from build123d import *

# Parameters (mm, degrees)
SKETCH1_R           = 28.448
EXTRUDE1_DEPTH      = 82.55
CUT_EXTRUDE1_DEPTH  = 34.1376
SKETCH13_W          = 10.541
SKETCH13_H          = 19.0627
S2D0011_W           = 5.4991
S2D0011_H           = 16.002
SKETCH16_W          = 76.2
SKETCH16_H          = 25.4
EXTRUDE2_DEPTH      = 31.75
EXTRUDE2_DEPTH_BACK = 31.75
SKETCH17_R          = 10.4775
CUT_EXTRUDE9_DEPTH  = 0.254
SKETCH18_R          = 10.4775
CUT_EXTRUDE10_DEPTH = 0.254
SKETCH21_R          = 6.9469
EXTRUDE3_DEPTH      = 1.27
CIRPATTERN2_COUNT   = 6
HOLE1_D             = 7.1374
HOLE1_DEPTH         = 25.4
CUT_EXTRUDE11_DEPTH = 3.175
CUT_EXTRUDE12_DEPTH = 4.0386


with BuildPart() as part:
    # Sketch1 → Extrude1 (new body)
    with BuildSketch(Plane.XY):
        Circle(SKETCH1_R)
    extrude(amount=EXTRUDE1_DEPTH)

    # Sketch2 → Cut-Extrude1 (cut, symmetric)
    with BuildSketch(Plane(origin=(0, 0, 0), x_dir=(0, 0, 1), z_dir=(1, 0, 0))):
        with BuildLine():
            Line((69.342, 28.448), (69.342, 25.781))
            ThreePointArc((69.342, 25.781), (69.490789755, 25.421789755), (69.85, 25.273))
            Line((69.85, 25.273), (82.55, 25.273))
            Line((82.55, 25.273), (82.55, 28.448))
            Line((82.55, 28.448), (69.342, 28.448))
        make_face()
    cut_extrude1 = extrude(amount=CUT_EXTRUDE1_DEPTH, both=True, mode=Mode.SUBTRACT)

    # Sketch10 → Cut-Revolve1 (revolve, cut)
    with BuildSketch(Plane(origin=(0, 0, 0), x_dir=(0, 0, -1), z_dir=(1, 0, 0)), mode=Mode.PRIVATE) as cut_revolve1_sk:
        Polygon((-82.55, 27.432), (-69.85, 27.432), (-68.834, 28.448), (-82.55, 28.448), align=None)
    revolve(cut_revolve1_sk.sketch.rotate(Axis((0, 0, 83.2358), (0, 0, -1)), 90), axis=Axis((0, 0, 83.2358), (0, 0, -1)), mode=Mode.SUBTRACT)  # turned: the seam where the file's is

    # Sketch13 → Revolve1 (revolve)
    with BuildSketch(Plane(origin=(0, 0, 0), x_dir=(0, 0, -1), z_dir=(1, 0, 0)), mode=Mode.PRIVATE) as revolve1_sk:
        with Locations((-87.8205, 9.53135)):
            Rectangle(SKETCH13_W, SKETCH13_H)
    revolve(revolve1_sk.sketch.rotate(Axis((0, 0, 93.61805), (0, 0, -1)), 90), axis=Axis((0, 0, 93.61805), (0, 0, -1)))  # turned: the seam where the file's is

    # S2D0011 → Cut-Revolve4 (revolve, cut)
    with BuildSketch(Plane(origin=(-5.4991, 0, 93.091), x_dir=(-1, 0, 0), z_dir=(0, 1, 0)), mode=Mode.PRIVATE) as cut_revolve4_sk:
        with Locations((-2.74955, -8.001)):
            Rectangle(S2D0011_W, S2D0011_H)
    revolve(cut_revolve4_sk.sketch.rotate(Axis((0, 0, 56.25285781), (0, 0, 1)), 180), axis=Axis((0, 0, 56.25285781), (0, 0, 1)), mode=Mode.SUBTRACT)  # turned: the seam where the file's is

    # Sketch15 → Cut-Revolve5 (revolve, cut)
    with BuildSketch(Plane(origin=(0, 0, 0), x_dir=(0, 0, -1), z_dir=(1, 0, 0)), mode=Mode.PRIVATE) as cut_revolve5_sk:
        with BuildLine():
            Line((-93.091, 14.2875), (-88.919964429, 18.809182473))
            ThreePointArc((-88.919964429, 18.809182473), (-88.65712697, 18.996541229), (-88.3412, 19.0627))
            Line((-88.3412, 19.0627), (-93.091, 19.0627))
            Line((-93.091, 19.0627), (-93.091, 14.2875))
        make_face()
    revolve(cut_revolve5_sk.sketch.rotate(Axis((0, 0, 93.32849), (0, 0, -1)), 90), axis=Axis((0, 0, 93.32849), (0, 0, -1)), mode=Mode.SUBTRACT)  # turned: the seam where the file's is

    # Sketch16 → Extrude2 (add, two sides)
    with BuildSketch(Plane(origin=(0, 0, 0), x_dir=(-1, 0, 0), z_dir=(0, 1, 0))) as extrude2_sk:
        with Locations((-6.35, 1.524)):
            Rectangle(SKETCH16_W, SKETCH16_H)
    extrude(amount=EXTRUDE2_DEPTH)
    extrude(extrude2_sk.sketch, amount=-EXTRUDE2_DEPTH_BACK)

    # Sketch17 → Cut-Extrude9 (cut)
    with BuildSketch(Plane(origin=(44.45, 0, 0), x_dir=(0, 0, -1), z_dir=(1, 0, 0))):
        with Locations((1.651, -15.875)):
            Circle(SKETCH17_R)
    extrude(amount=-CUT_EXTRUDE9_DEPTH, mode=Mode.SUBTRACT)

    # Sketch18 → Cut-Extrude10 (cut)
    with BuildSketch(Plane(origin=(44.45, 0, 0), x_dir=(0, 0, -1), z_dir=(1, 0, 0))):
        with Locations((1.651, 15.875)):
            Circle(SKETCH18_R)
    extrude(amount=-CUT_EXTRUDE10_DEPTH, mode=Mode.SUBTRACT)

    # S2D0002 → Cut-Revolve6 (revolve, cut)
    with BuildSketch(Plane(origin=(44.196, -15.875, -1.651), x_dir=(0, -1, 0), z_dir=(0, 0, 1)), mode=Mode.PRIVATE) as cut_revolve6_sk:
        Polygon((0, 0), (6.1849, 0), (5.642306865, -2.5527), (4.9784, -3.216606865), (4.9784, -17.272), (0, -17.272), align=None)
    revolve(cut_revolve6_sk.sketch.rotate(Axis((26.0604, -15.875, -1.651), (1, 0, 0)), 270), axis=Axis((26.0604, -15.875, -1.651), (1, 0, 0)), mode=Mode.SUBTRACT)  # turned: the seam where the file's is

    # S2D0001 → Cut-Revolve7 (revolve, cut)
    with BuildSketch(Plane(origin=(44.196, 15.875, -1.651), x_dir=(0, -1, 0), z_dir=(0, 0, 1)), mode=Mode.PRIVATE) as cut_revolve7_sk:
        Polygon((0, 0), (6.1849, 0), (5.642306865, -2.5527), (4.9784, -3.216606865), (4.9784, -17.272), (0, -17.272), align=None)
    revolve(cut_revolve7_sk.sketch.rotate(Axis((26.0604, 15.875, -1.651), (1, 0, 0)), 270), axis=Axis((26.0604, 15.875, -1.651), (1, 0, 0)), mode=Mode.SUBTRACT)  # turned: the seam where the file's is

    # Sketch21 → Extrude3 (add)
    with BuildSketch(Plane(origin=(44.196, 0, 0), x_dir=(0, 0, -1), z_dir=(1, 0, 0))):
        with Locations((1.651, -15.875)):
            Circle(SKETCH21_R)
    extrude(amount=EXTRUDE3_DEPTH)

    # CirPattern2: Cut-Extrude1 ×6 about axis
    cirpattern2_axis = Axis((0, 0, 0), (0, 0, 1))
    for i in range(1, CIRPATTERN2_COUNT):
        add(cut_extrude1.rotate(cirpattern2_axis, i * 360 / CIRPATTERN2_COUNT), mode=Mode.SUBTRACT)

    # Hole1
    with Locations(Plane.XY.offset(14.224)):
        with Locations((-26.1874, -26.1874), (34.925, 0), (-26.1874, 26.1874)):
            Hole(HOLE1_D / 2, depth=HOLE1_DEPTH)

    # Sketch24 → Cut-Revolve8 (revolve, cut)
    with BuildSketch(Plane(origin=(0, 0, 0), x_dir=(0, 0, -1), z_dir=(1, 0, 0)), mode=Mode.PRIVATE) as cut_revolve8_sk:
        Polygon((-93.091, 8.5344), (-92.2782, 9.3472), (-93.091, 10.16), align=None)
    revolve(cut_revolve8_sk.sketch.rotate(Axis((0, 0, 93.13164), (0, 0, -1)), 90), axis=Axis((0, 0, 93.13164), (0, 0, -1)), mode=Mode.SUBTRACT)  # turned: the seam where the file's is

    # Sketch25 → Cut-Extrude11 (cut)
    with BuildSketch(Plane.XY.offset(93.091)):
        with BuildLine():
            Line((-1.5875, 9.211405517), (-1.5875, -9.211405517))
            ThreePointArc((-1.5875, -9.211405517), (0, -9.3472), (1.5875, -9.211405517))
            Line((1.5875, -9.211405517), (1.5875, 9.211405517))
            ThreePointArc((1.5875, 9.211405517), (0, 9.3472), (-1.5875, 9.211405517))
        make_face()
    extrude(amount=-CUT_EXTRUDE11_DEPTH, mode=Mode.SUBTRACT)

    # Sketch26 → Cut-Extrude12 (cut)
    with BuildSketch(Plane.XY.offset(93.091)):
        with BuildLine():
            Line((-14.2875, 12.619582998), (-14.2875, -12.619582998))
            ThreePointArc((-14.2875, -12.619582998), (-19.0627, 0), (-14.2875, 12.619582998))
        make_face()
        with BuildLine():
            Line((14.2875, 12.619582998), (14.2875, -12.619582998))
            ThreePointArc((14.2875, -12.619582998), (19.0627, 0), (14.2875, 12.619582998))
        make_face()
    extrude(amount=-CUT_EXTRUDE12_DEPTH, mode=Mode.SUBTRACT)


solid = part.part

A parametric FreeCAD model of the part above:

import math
import FreeCAD as App
import Part
import Sketcher
from FreeCAD import Vector
Q = App.Units.Quantity


def add_polygon(sketch, points):
    """Adds a closed chain of lines whose ends are joined by coincident constraints."""
    first, n = sketch.GeometryCount, len(points)
    for a, b in zip(points, points[1:] + points[:1]):
        sketch.addGeometry(Part.LineSegment(App.Vector(*a, 0), App.Vector(*b, 0)), False)
    for i in range(n):
        sketch.addConstraint(Sketcher.Constraint("Coincident", first + i, 2, first + (i + 1) % n, 1))

doc = App.newDocument("Part")
body = doc.addObject("PartDesign::Body", "Body")

sketch1 = body.newObject("Sketcher::SketchObject", "Sketch")
sketch1.AttachmentSupport = (doc.getObject("XY_Plane"), [""])
sketch1.MapMode = "FlatFace"
sketch1.addGeometry(Part.Circle(Vector(0, 0, 0), Vector(0, 0, 1), 28), False)
sketch1.addConstraint([
    Sketcher.Constraint("Coincident", 0, 3, -1, 1),
    Sketcher.Constraint("Diameter", 0, Q("2.24 in")),
])
pad1 = body.newObject("PartDesign::Pad", "Pad")
pad1.Profile = sketch1
pad1.Length = Q("3.25 in")

sketch2 = body.newObject("Sketcher::SketchObject", "Sketch001")
sketch2.AttachmentSupport = (doc.getObject("YZ_Plane"), [""])
sketch2.MapMode = "FlatFace"
sketch2.addGeometry([
    Part.LineSegment(Vector(-28.4, 69.3, 0), Vector(-25.8, 69.3, 0)),
    Part.ArcOfCircle(Part.Circle(Vector(-25.8, 69.8, 0), Vector(0, 0, 1), 0.5), math.radians(-90), math.radians(0)),
    Part.LineSegment(Vector(-25.3, 69.8, 0), Vector(-25.3, 82.5, 0)),
    Part.LineSegment(Vector(-25.3, 82.5, 0), Vector(-28.4, 82.5, 0)),
    Part.LineSegment(Vector(-28.4, 82.5, 0), Vector(-28.4, 69.3, 0)),
], False)
sketch2.addConstraint([
    Sketcher.Constraint("Tangent", 0, 2, 1, 1),
    Sketcher.Constraint("Tangent", 1, 2, 2, 1),
    Sketcher.Constraint("Coincident", 2, 2, 3, 1),
    Sketcher.Constraint("Coincident", 3, 2, 4, 1),
    Sketcher.Constraint("Coincident", 4, 2, 0, 1),
    Sketcher.Constraint("Horizontal", 0),
    Sketcher.Constraint("Vertical", 2),
    Sketcher.Constraint("Horizontal", 3),
    Sketcher.Constraint("Vertical", 4),
    Sketcher.Constraint("Radius", 1, Q("0.02 in")),
    Sketcher.Constraint("DistanceY", 2, 1, 2, 2, Q("0.5 in")),
    Sketcher.Constraint("DistanceX", 0, 1, 0, 2, Q("0.105 in")),
    Sketcher.Constraint("DistanceY", -1, 1, 1, 3, Q("2.75 in")),
    Sketcher.Constraint("DistanceX", 3, 2, -1, 1, Q("1.12 in")),
])
pocket1 = body.newObject("PartDesign::Pocket", "Pocket")
pocket1.Profile = sketch2
pocket1.Length = Q("2.688 in")
pocket1.Midplane = True

sketch3 = body.newObject("Sketcher::SketchObject", "Sketch002")
sketch3.AttachmentSupport = (doc.getObject("YZ_Plane"), [""])
sketch3.MapMode = "FlatFace"
add_polygon(sketch3, [(27.4, 82.5), (27.4, 69.8), (28.4, 68.8), (28.4, 82.5)])
sketch3.addConstraint([
    Sketcher.Constraint("Vertical", 0),
    Sketcher.Constraint("Vertical", 2),
    Sketcher.Constraint("Horizontal", 3),
    Sketcher.Constraint("DistanceY", 0, 2, 0, 1, Q("0.5 in")),
    Sketcher.Constraint("Angle", 1, Q("-45 deg")),
    Sketcher.Constraint("DistanceX", 3, 2, 3, 1, Q("0.04 in")),
    Sketcher.Constraint("DistanceX", -1, 1, 0, 2, Q("1.08 in")),
    Sketcher.Constraint("DistanceY", -1, 1, 0, 2, Q("2.75 in")),
])
groove = body.newObject("PartDesign::Groove", "Groove")
groove.Profile = sketch3
groove.ReferenceAxis = (sketch3, ["V_Axis"])
groove.Angle = 360

sketch4 = body.newObject("Sketcher::SketchObject", "Sketch003")
sketch4.AttachmentSupport = (doc.getObject("YZ_Plane"), [""])
sketch4.MapMode = "FlatFace"
add_polygon(sketch4, [(19, 93), (0, 93), (0, 83), (19, 83)])
sketch4.addConstraint([
    Sketcher.Constraint("Horizontal", 0),
    Sketcher.Constraint("Vertical", 1),
    Sketcher.Constraint("Horizontal", 2),
    Sketcher.Constraint("Vertical", 3),
    Sketcher.Constraint("PointOnObject", 0, 2, -2),
    Sketcher.Constraint("DistanceY", 1, 2, 1, 1, Q("0.415 in")),
    Sketcher.Constraint("DistanceY", -1, 1, 1, 2, Q("3.25 in")),
    Sketcher.Constraint("DistanceX", 0, 2, 0, 1, Q("0.7505 in")),
])
revolution = body.newObject("PartDesign::Revolution", "Revolution")
revolution.Profile = sketch4
revolution.ReferenceAxis = (sketch4, ["V_Axis"])
revolution.Angle = 360

sketch5 = body.newObject("Sketcher::SketchObject", "Sketch004")
sketch5.AttachmentSupport = (doc.getObject("XZ_Plane"), [""])
sketch5.MapMode = "FlatFace"
add_polygon(sketch5, [(0, 93), (0, 77), (-5, 77), (-5, 93)])
sketch5.addConstraint([
    Sketcher.Constraint("Vertical", 0),
    Sketcher.Constraint("Horizontal", 1),
    Sketcher.Constraint("Vertical", 2),
    Sketcher.Constraint("Horizontal", 3),
    Sketcher.Constraint("PointOnObject", 0, 2, -2),
    Sketcher.Constraint("DistanceY", 0, 2, 0, 1, Q("0.63 in")),
    Sketcher.Constraint("DistanceX", 1, 2, 1, 1, Q("0.2165 in")),
    Sketcher.Constraint("DistanceY", -1, 1, 0, 2, Q("3.035 in")),
])
groove2 = body.newObject("PartDesign::Groove", "Groove001")
groove2.Profile = sketch5
groove2.ReferenceAxis = (sketch5, ["V_Axis"])
groove2.Angle = 360

sketch6 = body.newObject("Sketcher::SketchObject", "Sketch005")
sketch6.AttachmentSupport = (doc.getObject("YZ_Plane"), [""])
sketch6.MapMode = "FlatFace"
sketch6.addGeometry([
    Part.LineSegment(Vector(14.3, 93.1, 0), Vector(18.8, 88.9, 0)),
    Part.ArcOfCircle(Part.Circle(Vector(18.3, 88.3, 0), Vector(0, 0, 1), 0.8), math.radians(0), math.radians(47)),
    Part.LineSegment(Vector(19.1, 88.3, 0), Vector(19.1, 93.1, 0)),
    Part.LineSegment(Vector(19.1, 93.1, 0), Vector(14.3, 93.1, 0)),
], False)
sketch6.addConstraint([
    Sketcher.Constraint("Tangent", 0, 2, 1, 2),
    Sketcher.Constraint("Tangent", 1, 1, 2, 1),
    Sketcher.Constraint("Coincident", 2, 2, 3, 1),
    Sketcher.Constraint("Coincident", 3, 2, 0, 1),
    Sketcher.Constraint("Vertical", 2),
    Sketcher.Constraint("Horizontal", 3),
    Sketcher.Constraint("Radius", 1, Q("0.031 in")),
    Sketcher.Constraint("DistanceX", 3, 2, 3, 1, Q("0.188 in")),
    Sketcher.Constraint("DistanceY", 2, 1, 2, 2, Q("0.187 in")),
    Sketcher.Constraint("DistanceY", -1, 1, 1, 3, Q("3.478 in")),
    Sketcher.Constraint("DistanceX", -1, 1, 3, 2, Q("0.5625 in")),
])
groove3 = body.newObject("PartDesign::Groove", "Groove002")
groove3.Profile = sketch6
groove3.ReferenceAxis = (sketch6, ["V_Axis"])
groove3.Angle = 360

sketch7 = body.newObject("Sketcher::SketchObject", "Sketch006")
sketch7.AttachmentSupport = (doc.getObject("XZ_Plane"), [""])
sketch7.MapMode = "FlatFace"
add_polygon(sketch7, [(44, 14), (44, -11), (-32, -11), (-32, 14)])
sketch7.addConstraint([
    Sketcher.Constraint("Vertical", 0),
    Sketcher.Constraint("Horizontal", 1),
    Sketcher.Constraint("Vertical", 2),
    Sketcher.Constraint("Horizontal", 3),
    Sketcher.Constraint("DistanceX", 1, 2, 1, 1, Q("3 in")),
    Sketcher.Constraint("DistanceY", 0, 2, 0, 1, Q("1 in")),
    Sketcher.Constraint("DistanceX", -1, 1, 0, 2, Q("1.75 in")),
    Sketcher.Constraint("DistanceY", 0, 2, -1, 1, Q("0.44 in")),
])
pad2 = body.newObject("PartDesign::Pad", "Pad001")
pad2.Profile = sketch7
pad2.Type = "TwoLengths"
pad2.Length = Q("1.25 in")
pad2.Length2 = Q("1.25 in")
pad2.Reversed = True

sketch8 = body.newObject("Sketcher::SketchObject", "Sketch007")
sketch8.AttachmentSupport = (doc.getObject("YZ_Plane"), [""])
sketch8.MapMode = "FlatFace"
sketch8.AttachmentOffset = App.Placement(Vector(0, 0, 1.75 * 25.4), App.Rotation())
sketch8.addGeometry(Part.Circle(Vector(-16, -2, 0), Vector(0, 0, 1), 10), False)
sketch8.addConstraint([
    Sketcher.Constraint("Diameter", 0, Q("0.825 in")),
    Sketcher.Constraint("DistanceX", 0, 3, -1, 1, Q("0.625 in")),
    Sketcher.Constraint("DistanceY", 0, 3, -1, 1, Q("0.065 in")),
])
pocket2 = body.newObject("PartDesign::Pocket", "Pocket001")
pocket2.Profile = sketch8
pocket2.Length = Q("0.01 in")

sketch9 = body.newObject("Sketcher::SketchObject", "Sketch008")
sketch9.AttachmentSupport = (doc.getObject("YZ_Plane"), [""])
sketch9.MapMode = "FlatFace"
sketch9.AttachmentOffset = App.Placement(Vector(0, 0, 1.75 * 25.4), App.Rotation())
sketch9.addGeometry(Part.Circle(Vector(16, -2, 0), Vector(0, 0, 1), 10), False)
sketch9.addConstraint([
    Sketcher.Constraint("Diameter", 0, Q("0.825 in")),
    Sketcher.Constraint("DistanceX", -1, 1, 0, 3, Q("0.625 in")),
    Sketcher.Constraint("DistanceY", 0, 3, -1, 1, Q("0.065 in")),
])
pocket3 = body.newObject("PartDesign::Pocket", "Pocket002")
pocket3.Profile = sketch9
pocket3.Length = Q("0.01 in")

sketch10 = body.newObject("Sketcher::SketchObject", "Sketch009")
sketch10.AttachmentSupport = (doc.getObject("XY_Plane"), [""])
sketch10.MapMode = "FlatFace"
sketch10.AttachmentOffset = App.Placement(Vector(0, 0, -0.065 * 25.4), App.Rotation())
add_polygon(sketch10, [(44.2, -22.1), (44.2, -15.9), (26.9, -15.9), (26.9, -20.9), (41, -20.9), (41.6, -21.5)])
sketch10.addGeometry(Part.LineSegment(Vector(26.9, -15.9, 0), Vector(44.2, -15.9, 0)), True)
sketch10.addConstraint([
    Sketcher.Constraint("Vertical", 0),
    Sketcher.Constraint("Horizontal", 1),
    Sketcher.Constraint("Vertical", 2),
    Sketcher.Constraint("Horizontal", 3),
    Sketcher.Constraint("Horizontal", 6),
    Sketcher.Constraint("Coincident", 6, 1, 1, 2),
    Sketcher.Constraint("Vertical", 5, 2, 6, 2),
    Sketcher.Constraint("Angle", 4, Q("-45 deg")),
    Sketcher.Constraint("Angle", 5, Q("-12 deg")),
    Sketcher.Constraint("DistanceX", 1, 2, 1, 1, Q("0.68 in")),
    Sketcher.Constraint("DistanceY", 2, 2, 2, 1, Q("0.196 in")),
    Sketcher.Constraint("DistanceX", -1, 1, 0, 2, Q("1.74 in")),
    Sketcher.Constraint("DistanceY", 0, 1, 0, 2, Q("0.2435 in")),
    Sketcher.Constraint("DistanceY", 0, 2, -1, 1, Q("0.625 in")),
    Sketcher.Constraint("DistanceX", -1, 1, 4, 2, Q("1.6395 in")),
])
groove4 = body.newObject("PartDesign::Groove", "Groove003")
groove4.Profile = sketch10
groove4.ReferenceAxis = (sketch10, ["Axis0"])
groove4.Angle = 360

sketch11 = body.newObject("Sketcher::SketchObject", "Sketch010")
sketch11.AttachmentSupport = (doc.getObject("XY_Plane"), [""])
sketch11.MapMode = "FlatFace"
sketch11.AttachmentOffset = App.Placement(Vector(0, 0, -0.065 * 25.4), App.Rotation())
add_polygon(sketch11, [(44.2, 9.7), (44.2, 15.9), (26.9, 15.9), (26.9, 10.9), (41, 10.9), (41.6, 10.2)])
sketch11.addGeometry(Part.LineSegment(Vector(26.9, 15.9, 0), Vector(44.2, 15.9, 0)), True)
sketch11.addConstraint([
    Sketcher.Constraint("Vertical", 0),
    Sketcher.Constraint("Horizontal", 1),
    Sketcher.Constraint("Vertical", 2),
    Sketcher.Constraint("Horizontal", 3),
    Sketcher.Constraint("Horizontal", 6),
    Sketcher.Constraint("Coincident", 6, 1, 1, 2),
    Sketcher.Constraint("Vertical", 5, 2, 6, 2),
    Sketcher.Constraint("Angle", 4, Q("-45 deg")),
    Sketcher.Constraint("Angle", 5, Q("-12 deg")),
    Sketcher.Constraint("DistanceX", 1, 2, 1, 1, Q("0.68 in")),
    Sketcher.Constraint("DistanceY", 2, 2, 2, 1, Q("0.196 in")),
    Sketcher.Constraint("DistanceX", -1, 1, 0, 2, Q("1.74 in")),
    Sketcher.Constraint("DistanceY", 0, 1, 0, 2, Q("0.2435 in")),
    Sketcher.Constraint("DistanceY", -1, 1, 0, 2, Q("0.625 in")),
    Sketcher.Constraint("DistanceX", -1, 1, 4, 2, Q("1.6395 in")),
])
groove5 = body.newObject("PartDesign::Groove", "Groove004")
groove5.Profile = sketch11
groove5.ReferenceAxis = (sketch11, ["Axis0"])
groove5.Angle = 360

sketch12 = body.newObject("Sketcher::SketchObject", "Sketch011")
sketch12.AttachmentSupport = (doc.getObject("YZ_Plane"), [""])
sketch12.MapMode = "FlatFace"
sketch12.AttachmentOffset = App.Placement(Vector(0, 0, 1.74 * 25.4), App.Rotation())
sketch12.addGeometry(Part.Circle(Vector(-16, -2, 0), Vector(0, 0, 1), 7), False)
sketch12.addConstraint([
    Sketcher.Constraint("Diameter", 0, Q("0.547 in")),
    Sketcher.Constraint("DistanceX", 0, 3, -1, 1, Q("0.625 in")),
    Sketcher.Constraint("DistanceY", 0, 3, -1, 1, Q("0.065 in")),
])
pad3 = body.newObject("PartDesign::Pad", "Pad002")
pad3.Profile = sketch12
pad3.Length = Q("0.05 in")
doc.recompute()

polarpattern = body.newObject("PartDesign::PolarPattern", "PolarPattern")
polarpattern.Originals = [pocket1]
polarpattern.Axis = (doc.getObject("Z_Axis"), [""])
polarpattern.Angle = 360
polarpattern.Occurrences = 6
body.Tip = polarpattern

sketch13 = body.newObject("Sketcher::SketchObject", "Sketch012")
sketch13.AttachmentSupport = (doc.getObject("XY_Plane"), [""])
sketch13.MapMode = "FlatFace"
sketch13.AttachmentOffset = App.Placement(Vector(0, 0, 0.56 * 25.4), App.Rotation())
sketch13.addGeometry([
    Part.Circle(Vector(-26.2, -26.2, 0), Vector(0, 0, 1), 3.6),
    Part.Circle(Vector(34.9, 0, 0), Vector(0, 0, 1), 3.6),
    Part.Circle(Vector(-26.2, 26.2, 0), Vector(0, 0, 1), 3.6),
], False)
sketch13.addConstraint([
    Sketcher.Constraint("Equal", 0, 1),
    Sketcher.Constraint("Equal", 1, 2),
    Sketcher.Constraint("Symmetric", 0, 3, 2, 3, -1),
    Sketcher.Constraint("PointOnObject", 1, 3, -1),
    Sketcher.Constraint("Diameter", 0, Q("0.281 in")),
    Sketcher.Constraint("DistanceX", 0, 3, -1, 1, Q("1.031 in")),
    Sketcher.Constraint("DistanceY", 0, 3, -1, 1, Q("1.031 in")),
    Sketcher.Constraint("DistanceX", -1, 1, 1, 3, Q("1.375 in")),
])
doc.recompute()
hole = body.newObject("PartDesign::Hole", "Hole")
hole.Profile = sketch13
hole.ThreadType = "None"
hole.Diameter = Q("0.281 in")
hole.DepthType = "Dimension"
hole.Depth = Q("1 in")
hole.DrillPoint = "Flat"

sketch14 = body.newObject("Sketcher::SketchObject", "Sketch013")
sketch14.AttachmentSupport = (doc.getObject("YZ_Plane"), [""])
sketch14.MapMode = "FlatFace"
add_polygon(sketch14, [(8.5, 93.1), (9.3, 92.3), (10.2, 93.1)])
sketch14.addConstraint([
    Sketcher.Constraint("Horizontal", 2),
    Sketcher.Constraint("Perpendicular", 0, 1),
    Sketcher.Constraint("Equal", 0, 1),
    Sketcher.Constraint("DistanceX", -1, 1, 1, 2, Q("0.4 in")),
    Sketcher.Constraint("DistanceX", 2, 2, 2, 1, Q("0.064 in")),
    Sketcher.Constraint("DistanceY", -1, 1, 0, 2, Q("3.633 in")),
])
groove6 = body.newObject("PartDesign::Groove", "Groove005")
groove6.Profile = sketch14
groove6.ReferenceAxis = (sketch14, ["V_Axis"])
groove6.Angle = 360

sketch15 = body.newObject("Sketcher::SketchObject", "Sketch014")
sketch15.AttachmentSupport = (doc.getObject("XY_Plane"), [""])
sketch15.MapMode = "FlatFace"
sketch15.AttachmentOffset = App.Placement(Vector(0, 0, 3.665 * 25.4), App.Rotation())
sketch15.addGeometry([
    Part.LineSegment(Vector(-1.6, 9.2, 0), Vector(-1.6, -9.2, 0)),
    Part.ArcOfCircle(Part.Circle(Vector(0, 0, 0), Vector(0, 0, 1), 9.3), math.radians(-99.78), math.radians(-80.22)),
    Part.LineSegment(Vector(1.6, -9.2, 0), Vector(1.6, 9.2, 0)),
    Part.ArcOfCircle(Part.Circle(Vector(0, 0, 0), Vector(0, 0, 1), 9.3), math.radians(80.22), math.radians(99.78)),
], False)
sketch15.addConstraint([
    Sketcher.Constraint("Coincident", 0, 2, 1, 1),
    Sketcher.Constraint("Coincident", 1, 2, 2, 1),
    Sketcher.Constraint("Coincident", 2, 2, 3, 1),
    Sketcher.Constraint("Coincident", 3, 2, 0, 1),
    Sketcher.Constraint("Vertical", 0),
    Sketcher.Constraint("Vertical", 2),
    Sketcher.Constraint("Coincident", 1, 3, -1, 1),
    Sketcher.Constraint("Coincident", 3, 3, -1, 1),
    Sketcher.Constraint("Equal", 1, 3),
    Sketcher.Constraint("Horizontal", 0, 2, 1, 2),
    Sketcher.Constraint("Radius", 1, Q("0.368 in")),
    Sketcher.Constraint("DistanceX", 0, 2, -1, 1, Q("0.0625 in")),
])
pocket4 = body.newObject("PartDesign::Pocket", "Pocket003")
pocket4.Profile = sketch15
pocket4.Length = Q("0.125 in")

sketch16 = body.newObject("Sketcher::SketchObject", "Sketch015")
sketch16.AttachmentSupport = (doc.getObject("XY_Plane"), [""])
sketch16.MapMode = "FlatFace"
sketch16.AttachmentOffset = App.Placement(Vector(0, 0, 3.665 * 25.4), App.Rotation())
sketch16.addGeometry([
    Part.LineSegment(Vector(-14, -13, 0), Vector(-14, 13, 0)),
    Part.ArcOfCircle(Part.Circle(Vector(0, 0, 0), Vector(0, 0, 1), 19), math.radians(139), math.radians(221)),
    Part.LineSegment(Vector(14, 13, 0), Vector(14, -13, 0)),
    Part.ArcOfCircle(Part.Circle(Vector(0, 0, 0), Vector(0, 0, 1), 19), math.radians(-41), math.radians(41)),
], False)
sketch16.addConstraint([
    Sketcher.Constraint("Coincident", 0, 1, 1, 2),
    Sketcher.Constraint("Coincident", 1, 1, 0, 2),
    Sketcher.Constraint("Coincident", 2, 1, 3, 2),
    Sketcher.Constraint("Coincident", 3, 1, 2, 2),
    Sketcher.Constraint("Vertical", 0),
    Sketcher.Constraint("Vertical", 2),
    Sketcher.Constraint("Coincident", 1, 3, -1, 1),
    Sketcher.Constraint("Coincident", 3, 3, -1, 1),
    Sketcher.Constraint("Equal", 1, 3),
    Sketcher.Constraint("Horizontal", 1, 1, 2, 1),
    Sketcher.Constraint("Radius", 1, Q("0.7505 in")),
    Sketcher.Constraint("DistanceX", 0, 1, -1, 1, Q("0.5625 in")),
])
pocket5 = body.newObject("PartDesign::Pocket", "Pocket004")
pocket5.Profile = sketch16
pocket5.Length = Q("0.159 in")

doc.recompute()
